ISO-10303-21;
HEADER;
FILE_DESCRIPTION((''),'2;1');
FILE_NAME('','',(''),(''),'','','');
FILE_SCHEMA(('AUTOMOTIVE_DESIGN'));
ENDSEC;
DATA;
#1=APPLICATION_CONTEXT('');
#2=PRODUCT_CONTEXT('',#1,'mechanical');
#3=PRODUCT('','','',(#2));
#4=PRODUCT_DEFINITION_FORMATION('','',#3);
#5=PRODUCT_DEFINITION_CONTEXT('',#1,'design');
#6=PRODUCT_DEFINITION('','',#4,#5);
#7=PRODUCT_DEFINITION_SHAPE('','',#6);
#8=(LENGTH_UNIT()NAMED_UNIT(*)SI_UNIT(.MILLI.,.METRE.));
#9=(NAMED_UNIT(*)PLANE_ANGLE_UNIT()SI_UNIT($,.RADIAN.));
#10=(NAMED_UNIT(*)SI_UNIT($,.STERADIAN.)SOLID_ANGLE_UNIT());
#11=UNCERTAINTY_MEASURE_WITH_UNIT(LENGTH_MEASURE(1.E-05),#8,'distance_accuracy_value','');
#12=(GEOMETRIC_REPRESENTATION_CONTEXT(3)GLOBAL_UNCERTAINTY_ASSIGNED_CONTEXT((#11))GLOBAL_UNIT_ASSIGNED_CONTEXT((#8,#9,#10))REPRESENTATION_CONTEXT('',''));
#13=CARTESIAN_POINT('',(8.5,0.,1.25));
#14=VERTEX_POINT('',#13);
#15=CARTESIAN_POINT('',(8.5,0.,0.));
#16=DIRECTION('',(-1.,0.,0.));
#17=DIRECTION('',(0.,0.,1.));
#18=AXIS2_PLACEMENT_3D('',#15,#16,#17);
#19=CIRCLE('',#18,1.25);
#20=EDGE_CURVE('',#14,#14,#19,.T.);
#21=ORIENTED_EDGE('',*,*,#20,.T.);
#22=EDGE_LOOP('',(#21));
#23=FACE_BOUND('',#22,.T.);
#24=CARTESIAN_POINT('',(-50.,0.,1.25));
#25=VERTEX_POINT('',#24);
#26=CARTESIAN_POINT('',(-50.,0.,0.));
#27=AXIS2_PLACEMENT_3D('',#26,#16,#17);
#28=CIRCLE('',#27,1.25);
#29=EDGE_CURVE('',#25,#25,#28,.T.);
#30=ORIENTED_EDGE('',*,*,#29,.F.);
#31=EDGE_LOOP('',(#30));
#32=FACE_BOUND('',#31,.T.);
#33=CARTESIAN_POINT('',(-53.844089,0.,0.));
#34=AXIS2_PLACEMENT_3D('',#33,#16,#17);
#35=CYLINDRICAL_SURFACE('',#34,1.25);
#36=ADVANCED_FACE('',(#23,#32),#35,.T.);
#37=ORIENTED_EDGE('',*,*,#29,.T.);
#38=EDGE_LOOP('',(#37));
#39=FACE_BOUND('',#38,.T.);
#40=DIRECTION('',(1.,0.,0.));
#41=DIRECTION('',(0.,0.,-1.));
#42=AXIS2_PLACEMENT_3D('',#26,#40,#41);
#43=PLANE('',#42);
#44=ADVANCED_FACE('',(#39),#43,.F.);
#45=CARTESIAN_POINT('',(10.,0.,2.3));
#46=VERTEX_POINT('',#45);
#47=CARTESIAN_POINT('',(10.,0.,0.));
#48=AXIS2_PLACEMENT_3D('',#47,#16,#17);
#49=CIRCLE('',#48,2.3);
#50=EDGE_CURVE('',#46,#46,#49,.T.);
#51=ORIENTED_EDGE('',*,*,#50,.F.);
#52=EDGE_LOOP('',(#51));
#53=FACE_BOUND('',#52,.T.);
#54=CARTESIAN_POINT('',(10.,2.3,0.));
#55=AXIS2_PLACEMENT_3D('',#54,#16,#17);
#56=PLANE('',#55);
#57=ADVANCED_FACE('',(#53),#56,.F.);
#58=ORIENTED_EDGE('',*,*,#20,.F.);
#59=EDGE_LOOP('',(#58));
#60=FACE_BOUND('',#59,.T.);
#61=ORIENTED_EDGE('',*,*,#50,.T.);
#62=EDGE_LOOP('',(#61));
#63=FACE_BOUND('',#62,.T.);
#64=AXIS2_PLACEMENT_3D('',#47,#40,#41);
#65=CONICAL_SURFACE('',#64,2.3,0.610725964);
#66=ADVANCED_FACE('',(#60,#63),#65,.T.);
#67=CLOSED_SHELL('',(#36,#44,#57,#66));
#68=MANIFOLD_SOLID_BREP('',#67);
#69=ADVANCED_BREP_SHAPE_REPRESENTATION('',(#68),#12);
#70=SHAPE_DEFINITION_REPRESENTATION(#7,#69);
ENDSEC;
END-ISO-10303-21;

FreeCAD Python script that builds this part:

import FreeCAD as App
import Part
import Sketcher
from FreeCAD import Vector


def add_polygon(sketch, points):
    """Adds a closed chain of lines whose ends are joined by coincident constraints."""
    first, n = sketch.GeometryCount, len(points)
    for a, b in zip(points, points[1:] + points[:1]):
        sketch.addGeometry(Part.LineSegment(App.Vector(*a, 0), App.Vector(*b, 0)), False)
    for i in range(n):
        sketch.addConstraint(Sketcher.Constraint("Coincident", first + i, 2, first + (i + 1) % n, 1))

doc = App.newDocument("Part")
params = doc.addObject("Spreadsheet::Sheet", "Params")
for row, (alias, value) in enumerate([
    ("sketch1_width", "60 mm"),
    ("sketch1_width2", "58.5 mm"),
    ("sketch1_height", "2.3 mm"),
    ("sketch1_height2", "1.25 mm"),
    ("revolution_angle", "360 deg"),
], start=1):
    params.set(f"A{row}", alias)
    params.set(f"B{row}", "=" + value)
    params.setAlias(f"B{row}", alias)

body = doc.addObject("PartDesign::Body", "Body")

# Sketch on XY plane
sketch1 = body.newObject("Sketcher::SketchObject", "Sketch")
sketch1.AttachmentSupport = (doc.getObject("XY_Plane"), [""])
sketch1.MapMode = "FlatFace"
add_polygon(sketch1, [(-50, 1.2), (-50, 0), (10, 0), (10, 2.3), (8.5, 1.2)])  # lines 0-4
sketch1.addConstraint(Sketcher.Constraint("Vertical", 0))
sketch1.addConstraint(Sketcher.Constraint("Horizontal", 1))
sketch1.addConstraint(Sketcher.Constraint("Vertical", 2))
sketch1.addConstraint(Sketcher.Constraint("Horizontal", 4))
sketch1.addConstraint(Sketcher.Constraint("PointOnObject", 0, 2, -1))
sketch1.addConstraint(Sketcher.Constraint("DistanceX", 1, 1, 1, 2, 60.0))
sketch1.addConstraint(Sketcher.Constraint("DistanceX", 4, 2, 4, 1, 58.5))
sketch1.addConstraint(Sketcher.Constraint("DistanceY", 2, 1, 2, 2, 2.3))
sketch1.addConstraint(Sketcher.Constraint("DistanceX", 0, 2, -1, 1, 50.0))
sketch1.addConstraint(Sketcher.Constraint("DistanceY", 0, 2, 0, 1, 1.25))
sketch1.setExpression("Constraints[10]", "Params.sketch1_width")
sketch1.setExpression("Constraints[11]", "Params.sketch1_width2")
sketch1.setExpression("Constraints[12]", "Params.sketch1_height")
sketch1.setExpression("Constraints[14]", "Params.sketch1_height2")
revolution = body.newObject("PartDesign::Revolution", "Revolution")
revolution.Profile = sketch1
revolution.ReferenceAxis = (sketch1, ["H_Axis"])
revolution.setExpression("Angle", "Params.revolution_angle")

doc.recompute()
